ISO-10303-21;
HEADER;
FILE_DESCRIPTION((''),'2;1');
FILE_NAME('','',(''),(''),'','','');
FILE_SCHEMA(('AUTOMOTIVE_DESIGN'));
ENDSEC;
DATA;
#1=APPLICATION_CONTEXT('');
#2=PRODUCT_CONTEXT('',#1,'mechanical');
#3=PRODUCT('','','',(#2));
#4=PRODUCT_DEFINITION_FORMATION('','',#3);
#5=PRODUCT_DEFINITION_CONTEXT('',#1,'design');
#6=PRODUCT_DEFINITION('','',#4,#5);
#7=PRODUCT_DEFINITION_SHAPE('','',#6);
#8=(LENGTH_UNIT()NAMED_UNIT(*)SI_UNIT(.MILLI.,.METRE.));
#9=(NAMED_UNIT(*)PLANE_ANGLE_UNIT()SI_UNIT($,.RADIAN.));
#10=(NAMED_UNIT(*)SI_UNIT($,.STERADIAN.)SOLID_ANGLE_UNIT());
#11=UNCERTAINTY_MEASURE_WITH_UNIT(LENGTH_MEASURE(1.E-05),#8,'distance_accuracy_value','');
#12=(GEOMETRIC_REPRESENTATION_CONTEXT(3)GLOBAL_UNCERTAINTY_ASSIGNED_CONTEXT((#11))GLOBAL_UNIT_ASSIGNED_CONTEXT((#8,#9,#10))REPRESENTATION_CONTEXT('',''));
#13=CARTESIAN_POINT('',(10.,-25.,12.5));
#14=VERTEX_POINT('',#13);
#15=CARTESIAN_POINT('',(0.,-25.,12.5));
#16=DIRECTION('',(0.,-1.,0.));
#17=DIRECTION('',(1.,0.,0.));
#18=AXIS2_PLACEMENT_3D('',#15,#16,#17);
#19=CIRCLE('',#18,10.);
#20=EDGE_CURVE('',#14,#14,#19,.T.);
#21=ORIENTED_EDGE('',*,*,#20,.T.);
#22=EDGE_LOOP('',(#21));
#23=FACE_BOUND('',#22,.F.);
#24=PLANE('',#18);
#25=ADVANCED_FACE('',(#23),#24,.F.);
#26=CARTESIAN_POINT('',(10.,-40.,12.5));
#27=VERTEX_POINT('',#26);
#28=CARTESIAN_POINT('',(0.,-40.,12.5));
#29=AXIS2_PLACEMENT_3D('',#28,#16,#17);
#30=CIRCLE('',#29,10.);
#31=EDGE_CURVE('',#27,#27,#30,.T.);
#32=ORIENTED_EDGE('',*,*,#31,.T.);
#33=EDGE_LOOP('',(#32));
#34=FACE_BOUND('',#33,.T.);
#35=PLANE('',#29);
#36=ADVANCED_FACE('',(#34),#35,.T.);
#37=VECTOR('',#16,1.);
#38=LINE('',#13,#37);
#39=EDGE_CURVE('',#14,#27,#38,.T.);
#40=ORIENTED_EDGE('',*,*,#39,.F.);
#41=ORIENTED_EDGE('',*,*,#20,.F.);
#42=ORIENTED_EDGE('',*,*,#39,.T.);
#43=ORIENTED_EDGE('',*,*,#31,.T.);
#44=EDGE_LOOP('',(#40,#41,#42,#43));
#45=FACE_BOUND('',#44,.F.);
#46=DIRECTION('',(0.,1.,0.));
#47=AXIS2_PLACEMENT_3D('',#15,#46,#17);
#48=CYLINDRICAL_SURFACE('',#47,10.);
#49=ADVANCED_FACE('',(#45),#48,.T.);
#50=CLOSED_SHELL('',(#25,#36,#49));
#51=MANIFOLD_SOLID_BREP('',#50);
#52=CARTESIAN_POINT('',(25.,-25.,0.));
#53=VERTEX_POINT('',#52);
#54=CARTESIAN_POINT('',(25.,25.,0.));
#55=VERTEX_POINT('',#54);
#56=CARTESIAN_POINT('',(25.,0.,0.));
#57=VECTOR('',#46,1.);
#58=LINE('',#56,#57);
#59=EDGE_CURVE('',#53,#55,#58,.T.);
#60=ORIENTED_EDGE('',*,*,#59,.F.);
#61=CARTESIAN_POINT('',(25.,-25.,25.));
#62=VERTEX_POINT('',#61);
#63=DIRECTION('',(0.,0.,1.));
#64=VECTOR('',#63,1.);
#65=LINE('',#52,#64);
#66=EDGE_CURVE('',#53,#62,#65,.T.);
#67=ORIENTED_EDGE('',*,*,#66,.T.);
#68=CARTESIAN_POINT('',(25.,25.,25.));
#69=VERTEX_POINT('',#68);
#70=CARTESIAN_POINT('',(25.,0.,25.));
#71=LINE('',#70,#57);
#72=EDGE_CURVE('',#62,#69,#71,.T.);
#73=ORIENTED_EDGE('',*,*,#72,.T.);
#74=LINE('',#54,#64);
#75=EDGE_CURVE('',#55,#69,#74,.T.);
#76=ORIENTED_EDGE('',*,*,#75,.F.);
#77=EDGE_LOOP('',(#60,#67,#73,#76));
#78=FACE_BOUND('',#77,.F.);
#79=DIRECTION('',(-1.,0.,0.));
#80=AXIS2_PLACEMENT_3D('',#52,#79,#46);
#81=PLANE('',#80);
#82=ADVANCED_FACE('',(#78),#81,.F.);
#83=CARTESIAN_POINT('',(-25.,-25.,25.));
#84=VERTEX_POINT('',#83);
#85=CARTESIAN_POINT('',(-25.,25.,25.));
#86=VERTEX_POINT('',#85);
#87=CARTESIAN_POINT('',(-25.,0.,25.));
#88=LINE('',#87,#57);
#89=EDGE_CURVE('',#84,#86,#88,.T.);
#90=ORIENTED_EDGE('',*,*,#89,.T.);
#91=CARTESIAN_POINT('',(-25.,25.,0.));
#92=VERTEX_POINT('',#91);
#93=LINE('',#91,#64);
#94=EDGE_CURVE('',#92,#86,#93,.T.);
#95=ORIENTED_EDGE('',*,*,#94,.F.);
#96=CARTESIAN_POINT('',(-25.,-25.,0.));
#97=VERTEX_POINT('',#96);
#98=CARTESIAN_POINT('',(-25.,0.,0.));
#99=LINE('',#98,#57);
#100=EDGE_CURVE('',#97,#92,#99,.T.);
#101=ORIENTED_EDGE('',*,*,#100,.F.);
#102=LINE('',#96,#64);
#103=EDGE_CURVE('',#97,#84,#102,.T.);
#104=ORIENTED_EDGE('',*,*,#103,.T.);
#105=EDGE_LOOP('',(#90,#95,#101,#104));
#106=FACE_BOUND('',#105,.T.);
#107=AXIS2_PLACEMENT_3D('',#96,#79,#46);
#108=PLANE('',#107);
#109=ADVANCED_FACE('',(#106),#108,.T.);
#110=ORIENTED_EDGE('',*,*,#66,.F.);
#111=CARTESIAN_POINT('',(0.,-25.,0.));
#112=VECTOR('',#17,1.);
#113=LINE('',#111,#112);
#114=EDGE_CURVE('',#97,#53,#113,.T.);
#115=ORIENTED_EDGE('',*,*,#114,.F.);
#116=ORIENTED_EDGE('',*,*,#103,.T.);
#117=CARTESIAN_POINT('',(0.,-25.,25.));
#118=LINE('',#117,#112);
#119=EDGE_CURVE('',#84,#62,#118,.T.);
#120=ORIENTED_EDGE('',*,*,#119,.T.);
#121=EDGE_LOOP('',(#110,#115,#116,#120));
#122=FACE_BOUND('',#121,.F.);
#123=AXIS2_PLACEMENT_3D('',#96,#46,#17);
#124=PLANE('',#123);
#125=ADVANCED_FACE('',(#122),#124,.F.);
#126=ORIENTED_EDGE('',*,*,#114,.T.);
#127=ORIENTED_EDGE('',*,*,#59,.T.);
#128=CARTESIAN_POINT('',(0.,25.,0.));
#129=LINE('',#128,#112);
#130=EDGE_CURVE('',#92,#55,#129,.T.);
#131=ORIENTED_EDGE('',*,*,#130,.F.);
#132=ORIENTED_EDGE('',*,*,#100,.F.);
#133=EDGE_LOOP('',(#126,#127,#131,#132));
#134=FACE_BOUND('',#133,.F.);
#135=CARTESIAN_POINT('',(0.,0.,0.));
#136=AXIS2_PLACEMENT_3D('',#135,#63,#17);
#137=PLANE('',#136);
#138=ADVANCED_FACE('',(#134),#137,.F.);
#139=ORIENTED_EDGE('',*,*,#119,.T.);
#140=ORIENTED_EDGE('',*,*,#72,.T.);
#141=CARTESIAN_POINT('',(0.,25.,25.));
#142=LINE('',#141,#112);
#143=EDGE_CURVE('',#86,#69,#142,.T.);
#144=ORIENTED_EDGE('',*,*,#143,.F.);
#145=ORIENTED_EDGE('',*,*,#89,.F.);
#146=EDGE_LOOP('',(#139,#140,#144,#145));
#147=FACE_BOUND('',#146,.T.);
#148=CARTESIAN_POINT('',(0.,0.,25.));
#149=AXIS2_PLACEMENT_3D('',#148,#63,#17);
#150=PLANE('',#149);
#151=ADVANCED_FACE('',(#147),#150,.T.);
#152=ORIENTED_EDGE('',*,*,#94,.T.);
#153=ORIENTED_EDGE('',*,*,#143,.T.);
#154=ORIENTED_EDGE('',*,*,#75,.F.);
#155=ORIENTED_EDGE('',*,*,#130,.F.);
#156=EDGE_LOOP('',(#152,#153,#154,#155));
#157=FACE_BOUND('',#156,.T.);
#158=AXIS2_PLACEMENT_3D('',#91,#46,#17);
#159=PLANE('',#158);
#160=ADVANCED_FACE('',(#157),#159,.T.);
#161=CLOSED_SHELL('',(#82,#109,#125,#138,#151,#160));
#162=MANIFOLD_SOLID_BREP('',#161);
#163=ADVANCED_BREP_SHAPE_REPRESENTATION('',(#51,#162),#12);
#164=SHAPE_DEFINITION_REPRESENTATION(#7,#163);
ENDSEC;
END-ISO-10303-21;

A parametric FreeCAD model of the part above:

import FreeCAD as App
import Part
import Sketcher

doc = App.newDocument("Part")
body = doc.addObject("PartDesign::Body", "Body")

# Sketch on XY plane
sketch1 = doc.addObject("Sketcher::SketchObject", "Sketch")
body.addObject(sketch1)
sketch1.AttachmentSupport = (doc.XY_Plane, [""])
sketch1.MapMode = "FlatFace"
sketch1.addGeometry(Part.LineSegment(App.Vector(-25, 25, 0), App.Vector(-25, -25, 0)), False)
sketch1.addGeometry(Part.LineSegment(App.Vector(-25, -25, 0), App.Vector(25, -25, 0)), False)
sketch1.addGeometry(Part.LineSegment(App.Vector(25, -25, 0), App.Vector(25, 25, 0)), False)
sketch1.addGeometry(Part.LineSegment(App.Vector(25, 25, 0), App.Vector(-25, 25, 0)), False)
sketch1.addConstraint(Sketcher.Constraint("Coincident", 0, 2, 1, 1))
sketch1.addConstraint(Sketcher.Constraint("Coincident", 1, 2, 2, 1))
sketch1.addConstraint(Sketcher.Constraint("Coincident", 2, 2, 3, 1))
sketch1.addConstraint(Sketcher.Constraint("Coincident", 3, 2, 0, 1))
sketch1.addConstraint(Sketcher.Constraint("Vertical", 0))
sketch1.addConstraint(Sketcher.Constraint("Horizontal", 1))
sketch1.addConstraint(Sketcher.Constraint("Vertical", 2))
sketch1.addConstraint(Sketcher.Constraint("Horizontal", 3))
sketch1.addConstraint(Sketcher.Constraint("Symmetric", 0, 2, 2, 2, -1, 1))
sketch1.addConstraint(Sketcher.Constraint("Equal", 3, 0))
sketch1.addConstraint(Sketcher.Constraint("DistanceX", 1, 1, 1, 2, 50.0))
pad1 = doc.addObject("PartDesign::Pad", "Pad")
body.addObject(pad1)
pad1.Profile = sketch1
pad1.Length = 25
body2 = doc.addObject("PartDesign::Body", "Body001")

# Sketch on XZ plane
sketch2 = doc.addObject("Sketcher::SketchObject", "Sketch001")
body2.addObject(sketch2)
sketch2.AttachmentSupport = (doc.getObject("XZ_Plane001"), [""])
sketch2.MapMode = "FlatFace"
sketch2.AttachmentOffset = App.Placement(App.Vector(0, 0, 25), App.Rotation())
sketch2.addGeometry(Part.Circle(App.Vector(0, 12, 0), App.Vector(0, 0, 1), 10), False)
sketch2.addConstraint(Sketcher.Constraint("PointOnObject", 0, 3, -2))
sketch2.addConstraint(Sketcher.Constraint("Diameter", 0, 20.0))
sketch2.addConstraint(Sketcher.Constraint("DistanceY", -1, 1, 0, 3, 12.5))
pad2 = doc.addObject("PartDesign::Pad", "Pad001")
body2.addObject(pad2)
pad2.Profile = sketch2
pad2.Length = 15

doc.recompute()
